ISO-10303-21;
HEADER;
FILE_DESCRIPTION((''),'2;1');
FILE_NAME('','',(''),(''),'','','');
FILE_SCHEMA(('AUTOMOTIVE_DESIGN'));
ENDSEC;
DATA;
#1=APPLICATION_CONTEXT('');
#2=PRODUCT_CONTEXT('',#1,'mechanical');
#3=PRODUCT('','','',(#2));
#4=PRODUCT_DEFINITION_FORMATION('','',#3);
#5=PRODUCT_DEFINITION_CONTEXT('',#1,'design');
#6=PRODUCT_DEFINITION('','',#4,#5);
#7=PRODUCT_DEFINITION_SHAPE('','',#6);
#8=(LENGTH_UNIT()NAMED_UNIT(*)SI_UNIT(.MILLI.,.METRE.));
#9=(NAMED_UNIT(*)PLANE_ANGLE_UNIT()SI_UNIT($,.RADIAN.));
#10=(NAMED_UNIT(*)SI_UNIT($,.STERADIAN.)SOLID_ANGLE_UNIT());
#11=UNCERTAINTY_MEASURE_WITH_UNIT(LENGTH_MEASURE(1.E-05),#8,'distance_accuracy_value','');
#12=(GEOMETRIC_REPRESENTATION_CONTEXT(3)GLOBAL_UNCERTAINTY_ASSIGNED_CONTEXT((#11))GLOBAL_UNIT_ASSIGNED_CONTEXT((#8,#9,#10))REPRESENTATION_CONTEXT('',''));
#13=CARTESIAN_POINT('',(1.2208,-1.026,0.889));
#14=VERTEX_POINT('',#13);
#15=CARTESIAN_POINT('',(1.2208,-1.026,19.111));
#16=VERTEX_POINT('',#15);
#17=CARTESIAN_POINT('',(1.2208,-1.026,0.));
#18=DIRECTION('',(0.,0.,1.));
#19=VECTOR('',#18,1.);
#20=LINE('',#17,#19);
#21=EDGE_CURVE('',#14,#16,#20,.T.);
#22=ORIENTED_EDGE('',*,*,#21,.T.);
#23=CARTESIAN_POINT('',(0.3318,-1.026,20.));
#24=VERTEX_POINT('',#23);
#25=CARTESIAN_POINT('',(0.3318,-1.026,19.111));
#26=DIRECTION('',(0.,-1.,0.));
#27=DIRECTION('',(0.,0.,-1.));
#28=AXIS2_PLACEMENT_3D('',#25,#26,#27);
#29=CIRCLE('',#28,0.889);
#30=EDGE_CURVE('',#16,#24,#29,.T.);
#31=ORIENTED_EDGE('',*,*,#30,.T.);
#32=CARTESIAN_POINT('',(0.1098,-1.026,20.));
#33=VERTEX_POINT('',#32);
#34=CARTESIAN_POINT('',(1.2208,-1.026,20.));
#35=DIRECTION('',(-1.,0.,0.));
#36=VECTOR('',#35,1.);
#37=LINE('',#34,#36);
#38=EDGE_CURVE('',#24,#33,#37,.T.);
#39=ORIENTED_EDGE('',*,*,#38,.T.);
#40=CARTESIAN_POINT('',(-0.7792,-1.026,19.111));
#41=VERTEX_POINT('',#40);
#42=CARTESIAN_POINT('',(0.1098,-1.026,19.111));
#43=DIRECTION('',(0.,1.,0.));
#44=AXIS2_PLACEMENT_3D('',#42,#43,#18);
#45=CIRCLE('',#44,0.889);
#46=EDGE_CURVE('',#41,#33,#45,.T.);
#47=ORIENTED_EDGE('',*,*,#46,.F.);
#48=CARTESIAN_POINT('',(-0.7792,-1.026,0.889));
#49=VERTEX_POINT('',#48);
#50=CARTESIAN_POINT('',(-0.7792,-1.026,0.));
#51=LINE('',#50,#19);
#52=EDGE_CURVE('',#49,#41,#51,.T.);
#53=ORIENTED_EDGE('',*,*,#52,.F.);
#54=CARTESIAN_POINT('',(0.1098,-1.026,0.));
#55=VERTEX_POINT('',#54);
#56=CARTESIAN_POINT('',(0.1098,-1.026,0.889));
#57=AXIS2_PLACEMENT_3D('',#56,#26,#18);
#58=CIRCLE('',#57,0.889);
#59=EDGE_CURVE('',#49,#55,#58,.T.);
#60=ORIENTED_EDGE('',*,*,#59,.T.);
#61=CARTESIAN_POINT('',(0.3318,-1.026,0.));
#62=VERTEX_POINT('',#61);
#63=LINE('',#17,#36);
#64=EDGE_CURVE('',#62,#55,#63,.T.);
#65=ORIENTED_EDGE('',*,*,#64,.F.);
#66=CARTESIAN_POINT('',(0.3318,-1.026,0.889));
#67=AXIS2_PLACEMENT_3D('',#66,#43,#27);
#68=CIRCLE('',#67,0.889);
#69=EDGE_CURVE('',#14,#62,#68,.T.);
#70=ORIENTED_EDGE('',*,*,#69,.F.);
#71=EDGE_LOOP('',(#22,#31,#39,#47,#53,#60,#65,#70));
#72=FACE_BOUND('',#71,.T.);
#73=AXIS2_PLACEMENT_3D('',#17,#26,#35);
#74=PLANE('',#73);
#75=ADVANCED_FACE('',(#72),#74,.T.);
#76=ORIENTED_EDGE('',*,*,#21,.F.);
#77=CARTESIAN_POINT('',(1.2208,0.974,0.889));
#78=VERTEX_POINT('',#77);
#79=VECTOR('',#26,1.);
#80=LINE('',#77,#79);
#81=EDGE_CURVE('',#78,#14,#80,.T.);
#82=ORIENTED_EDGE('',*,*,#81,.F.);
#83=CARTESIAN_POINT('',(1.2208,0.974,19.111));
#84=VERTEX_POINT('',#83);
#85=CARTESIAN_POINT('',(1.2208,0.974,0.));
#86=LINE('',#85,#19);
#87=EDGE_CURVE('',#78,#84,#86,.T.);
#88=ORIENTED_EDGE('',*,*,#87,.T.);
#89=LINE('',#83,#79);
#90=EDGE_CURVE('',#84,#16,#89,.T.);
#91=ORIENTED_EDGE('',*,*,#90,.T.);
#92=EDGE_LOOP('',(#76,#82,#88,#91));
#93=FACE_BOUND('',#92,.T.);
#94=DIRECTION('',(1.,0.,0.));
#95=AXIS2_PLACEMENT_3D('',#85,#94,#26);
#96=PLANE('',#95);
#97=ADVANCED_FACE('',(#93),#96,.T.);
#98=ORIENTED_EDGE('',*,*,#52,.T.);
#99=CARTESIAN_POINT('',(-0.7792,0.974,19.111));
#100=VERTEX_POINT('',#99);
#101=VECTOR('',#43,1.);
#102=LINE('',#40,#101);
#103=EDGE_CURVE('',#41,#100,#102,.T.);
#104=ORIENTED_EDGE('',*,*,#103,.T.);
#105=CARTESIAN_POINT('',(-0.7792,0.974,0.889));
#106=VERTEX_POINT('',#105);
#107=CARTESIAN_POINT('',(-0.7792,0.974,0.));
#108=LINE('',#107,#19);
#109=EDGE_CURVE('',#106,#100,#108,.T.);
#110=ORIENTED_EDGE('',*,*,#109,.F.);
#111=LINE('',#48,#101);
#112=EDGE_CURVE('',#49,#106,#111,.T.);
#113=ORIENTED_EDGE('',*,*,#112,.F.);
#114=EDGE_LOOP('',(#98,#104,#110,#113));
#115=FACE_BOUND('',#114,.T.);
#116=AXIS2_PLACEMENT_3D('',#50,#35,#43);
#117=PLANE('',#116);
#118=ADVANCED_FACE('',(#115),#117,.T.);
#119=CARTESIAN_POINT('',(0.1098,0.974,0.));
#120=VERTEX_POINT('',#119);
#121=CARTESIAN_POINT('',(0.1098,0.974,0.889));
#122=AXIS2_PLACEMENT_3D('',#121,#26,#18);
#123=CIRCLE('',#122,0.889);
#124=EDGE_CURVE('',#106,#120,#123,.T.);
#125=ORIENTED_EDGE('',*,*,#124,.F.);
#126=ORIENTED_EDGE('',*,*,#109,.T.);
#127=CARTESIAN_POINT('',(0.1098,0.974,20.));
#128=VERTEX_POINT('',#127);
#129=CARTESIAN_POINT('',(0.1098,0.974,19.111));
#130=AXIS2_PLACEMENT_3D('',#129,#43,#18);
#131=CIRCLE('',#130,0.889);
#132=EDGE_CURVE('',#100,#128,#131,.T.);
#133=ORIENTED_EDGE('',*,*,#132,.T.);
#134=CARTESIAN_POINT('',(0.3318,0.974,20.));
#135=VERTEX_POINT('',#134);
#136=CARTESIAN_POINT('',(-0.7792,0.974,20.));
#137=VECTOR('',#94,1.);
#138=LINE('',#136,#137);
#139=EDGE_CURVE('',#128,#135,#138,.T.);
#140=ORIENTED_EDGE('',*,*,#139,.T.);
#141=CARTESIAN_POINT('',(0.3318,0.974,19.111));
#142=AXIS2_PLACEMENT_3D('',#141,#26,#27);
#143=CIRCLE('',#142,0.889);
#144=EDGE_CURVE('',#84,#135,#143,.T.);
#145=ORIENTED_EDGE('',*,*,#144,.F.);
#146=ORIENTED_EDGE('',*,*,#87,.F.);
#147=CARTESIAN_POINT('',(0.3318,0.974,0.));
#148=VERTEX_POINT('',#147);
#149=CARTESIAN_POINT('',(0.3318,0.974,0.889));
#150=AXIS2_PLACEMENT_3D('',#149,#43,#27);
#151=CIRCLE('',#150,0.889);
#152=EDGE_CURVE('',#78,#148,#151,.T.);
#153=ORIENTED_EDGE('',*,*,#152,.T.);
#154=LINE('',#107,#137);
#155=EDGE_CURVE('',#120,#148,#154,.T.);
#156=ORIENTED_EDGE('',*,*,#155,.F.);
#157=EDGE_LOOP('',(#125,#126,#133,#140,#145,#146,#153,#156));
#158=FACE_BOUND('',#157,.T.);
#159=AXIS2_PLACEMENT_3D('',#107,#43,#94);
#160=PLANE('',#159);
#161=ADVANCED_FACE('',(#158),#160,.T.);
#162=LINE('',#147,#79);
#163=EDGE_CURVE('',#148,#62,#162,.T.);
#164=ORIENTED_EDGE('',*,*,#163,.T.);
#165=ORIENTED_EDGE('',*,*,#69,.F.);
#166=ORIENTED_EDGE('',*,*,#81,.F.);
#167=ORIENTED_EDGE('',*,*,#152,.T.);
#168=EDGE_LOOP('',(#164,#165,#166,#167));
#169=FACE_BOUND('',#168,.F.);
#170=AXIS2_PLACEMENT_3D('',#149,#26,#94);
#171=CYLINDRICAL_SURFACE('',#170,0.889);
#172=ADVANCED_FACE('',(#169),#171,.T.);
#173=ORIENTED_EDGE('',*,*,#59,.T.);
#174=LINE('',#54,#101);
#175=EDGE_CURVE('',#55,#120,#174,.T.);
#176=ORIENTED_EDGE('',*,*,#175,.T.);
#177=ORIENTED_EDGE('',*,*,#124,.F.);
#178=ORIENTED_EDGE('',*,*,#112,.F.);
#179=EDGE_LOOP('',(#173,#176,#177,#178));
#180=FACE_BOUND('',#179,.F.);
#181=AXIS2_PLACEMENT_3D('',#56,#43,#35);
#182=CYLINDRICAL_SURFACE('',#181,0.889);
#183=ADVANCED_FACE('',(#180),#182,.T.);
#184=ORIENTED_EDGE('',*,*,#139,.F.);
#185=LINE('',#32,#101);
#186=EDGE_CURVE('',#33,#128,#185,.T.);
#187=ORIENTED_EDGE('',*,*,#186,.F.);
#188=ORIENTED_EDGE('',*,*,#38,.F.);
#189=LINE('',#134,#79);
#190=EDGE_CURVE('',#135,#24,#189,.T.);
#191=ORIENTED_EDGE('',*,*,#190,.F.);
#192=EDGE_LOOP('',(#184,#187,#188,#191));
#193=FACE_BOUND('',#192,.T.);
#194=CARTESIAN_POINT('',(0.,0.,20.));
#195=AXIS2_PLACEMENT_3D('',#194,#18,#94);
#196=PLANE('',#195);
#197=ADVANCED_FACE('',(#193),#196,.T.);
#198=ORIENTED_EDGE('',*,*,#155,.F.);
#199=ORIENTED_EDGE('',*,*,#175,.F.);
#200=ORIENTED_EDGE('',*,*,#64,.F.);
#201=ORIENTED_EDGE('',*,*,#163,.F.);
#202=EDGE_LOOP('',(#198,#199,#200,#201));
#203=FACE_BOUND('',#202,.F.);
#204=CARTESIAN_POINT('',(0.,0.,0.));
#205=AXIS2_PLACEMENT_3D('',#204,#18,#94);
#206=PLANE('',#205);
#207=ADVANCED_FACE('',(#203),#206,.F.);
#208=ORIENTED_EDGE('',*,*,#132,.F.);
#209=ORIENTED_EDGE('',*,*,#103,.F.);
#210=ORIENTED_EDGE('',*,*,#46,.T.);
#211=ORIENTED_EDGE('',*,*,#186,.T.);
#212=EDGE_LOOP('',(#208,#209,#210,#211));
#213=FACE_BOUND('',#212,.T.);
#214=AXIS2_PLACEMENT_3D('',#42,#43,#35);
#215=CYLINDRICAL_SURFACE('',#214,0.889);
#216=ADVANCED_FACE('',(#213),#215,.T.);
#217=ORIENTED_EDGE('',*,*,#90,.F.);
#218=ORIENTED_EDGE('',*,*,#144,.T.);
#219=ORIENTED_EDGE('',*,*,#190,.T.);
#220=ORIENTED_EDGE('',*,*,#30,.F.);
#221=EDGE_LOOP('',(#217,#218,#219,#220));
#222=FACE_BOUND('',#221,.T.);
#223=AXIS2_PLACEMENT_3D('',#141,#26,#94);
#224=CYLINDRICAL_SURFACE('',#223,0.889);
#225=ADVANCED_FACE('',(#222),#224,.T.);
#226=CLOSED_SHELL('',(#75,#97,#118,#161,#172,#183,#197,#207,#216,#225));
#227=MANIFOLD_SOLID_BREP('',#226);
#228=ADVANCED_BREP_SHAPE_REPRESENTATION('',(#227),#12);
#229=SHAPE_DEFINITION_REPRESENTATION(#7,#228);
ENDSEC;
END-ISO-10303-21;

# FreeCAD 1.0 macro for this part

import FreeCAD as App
import Part
import Sketcher
from FreeCAD import Vector


def edges_at(feature, points):
    """Names of the edges that pass closest to the given points."""
    edges = feature.Shape.Edges
    near = lambda p: min(range(len(edges)), key=lambda i: edges[i].distToShape(Part.Vertex(*p))[0])
    return sorted({f"Edge{near(p) + 1}" for p in points})


def add_polygon(sketch, points):
    """Adds a closed chain of lines whose ends are joined by coincident constraints."""
    first, n = sketch.GeometryCount, len(points)
    for a, b in zip(points, points[1:] + points[:1]):
        sketch.addGeometry(Part.LineSegment(App.Vector(*a, 0), App.Vector(*b, 0)), False)
    for i in range(n):
        sketch.addConstraint(Sketcher.Constraint("Coincident", first + i, 2, first + (i + 1) % n, 1))

doc = App.newDocument("Part")
body = doc.addObject("PartDesign::Body", "Body")

sketch1 = body.newObject("Sketcher::SketchObject", "Sketch")
sketch1.AttachmentSupport = (doc.getObject("XY_Plane"), [""])
sketch1.MapMode = "FlatFace"
add_polygon(sketch1, [(1.2, 1), (-0.8, 1), (-0.8, -1), (1.2, -1)])
sketch1.addConstraint([
    Sketcher.Constraint("Horizontal", 0),
    Sketcher.Constraint("Vertical", 1),
    Sketcher.Constraint("Horizontal", 2),
    Sketcher.Constraint("Vertical", 3),
    Sketcher.Constraint("Equal", 2, 1),
    Sketcher.Constraint("DistanceX", 0, 2, 0, 1, 2.0),
    Sketcher.Constraint("DistanceY", -1, 1, 0, 2, 0.974),
    Sketcher.Constraint("DistanceX", 0, 2, -1, 1, 0.7792),
])
pad1 = body.newObject("PartDesign::Pad", "Pad")
pad1.Profile = sketch1
pad1.Length = 20
doc.recompute()

fillet = body.newObject("PartDesign::Fillet", "Fillet")
fillet.Base = (pad1, edges_at(pad1, [
    (-0.779, -0.026, 20),
    (1.221, -0.026, 20),
    (1.221, -0.026, 0),
    (-0.779, -0.026, 0),
]))
fillet.Radius = 0.889

doc.recompute()
